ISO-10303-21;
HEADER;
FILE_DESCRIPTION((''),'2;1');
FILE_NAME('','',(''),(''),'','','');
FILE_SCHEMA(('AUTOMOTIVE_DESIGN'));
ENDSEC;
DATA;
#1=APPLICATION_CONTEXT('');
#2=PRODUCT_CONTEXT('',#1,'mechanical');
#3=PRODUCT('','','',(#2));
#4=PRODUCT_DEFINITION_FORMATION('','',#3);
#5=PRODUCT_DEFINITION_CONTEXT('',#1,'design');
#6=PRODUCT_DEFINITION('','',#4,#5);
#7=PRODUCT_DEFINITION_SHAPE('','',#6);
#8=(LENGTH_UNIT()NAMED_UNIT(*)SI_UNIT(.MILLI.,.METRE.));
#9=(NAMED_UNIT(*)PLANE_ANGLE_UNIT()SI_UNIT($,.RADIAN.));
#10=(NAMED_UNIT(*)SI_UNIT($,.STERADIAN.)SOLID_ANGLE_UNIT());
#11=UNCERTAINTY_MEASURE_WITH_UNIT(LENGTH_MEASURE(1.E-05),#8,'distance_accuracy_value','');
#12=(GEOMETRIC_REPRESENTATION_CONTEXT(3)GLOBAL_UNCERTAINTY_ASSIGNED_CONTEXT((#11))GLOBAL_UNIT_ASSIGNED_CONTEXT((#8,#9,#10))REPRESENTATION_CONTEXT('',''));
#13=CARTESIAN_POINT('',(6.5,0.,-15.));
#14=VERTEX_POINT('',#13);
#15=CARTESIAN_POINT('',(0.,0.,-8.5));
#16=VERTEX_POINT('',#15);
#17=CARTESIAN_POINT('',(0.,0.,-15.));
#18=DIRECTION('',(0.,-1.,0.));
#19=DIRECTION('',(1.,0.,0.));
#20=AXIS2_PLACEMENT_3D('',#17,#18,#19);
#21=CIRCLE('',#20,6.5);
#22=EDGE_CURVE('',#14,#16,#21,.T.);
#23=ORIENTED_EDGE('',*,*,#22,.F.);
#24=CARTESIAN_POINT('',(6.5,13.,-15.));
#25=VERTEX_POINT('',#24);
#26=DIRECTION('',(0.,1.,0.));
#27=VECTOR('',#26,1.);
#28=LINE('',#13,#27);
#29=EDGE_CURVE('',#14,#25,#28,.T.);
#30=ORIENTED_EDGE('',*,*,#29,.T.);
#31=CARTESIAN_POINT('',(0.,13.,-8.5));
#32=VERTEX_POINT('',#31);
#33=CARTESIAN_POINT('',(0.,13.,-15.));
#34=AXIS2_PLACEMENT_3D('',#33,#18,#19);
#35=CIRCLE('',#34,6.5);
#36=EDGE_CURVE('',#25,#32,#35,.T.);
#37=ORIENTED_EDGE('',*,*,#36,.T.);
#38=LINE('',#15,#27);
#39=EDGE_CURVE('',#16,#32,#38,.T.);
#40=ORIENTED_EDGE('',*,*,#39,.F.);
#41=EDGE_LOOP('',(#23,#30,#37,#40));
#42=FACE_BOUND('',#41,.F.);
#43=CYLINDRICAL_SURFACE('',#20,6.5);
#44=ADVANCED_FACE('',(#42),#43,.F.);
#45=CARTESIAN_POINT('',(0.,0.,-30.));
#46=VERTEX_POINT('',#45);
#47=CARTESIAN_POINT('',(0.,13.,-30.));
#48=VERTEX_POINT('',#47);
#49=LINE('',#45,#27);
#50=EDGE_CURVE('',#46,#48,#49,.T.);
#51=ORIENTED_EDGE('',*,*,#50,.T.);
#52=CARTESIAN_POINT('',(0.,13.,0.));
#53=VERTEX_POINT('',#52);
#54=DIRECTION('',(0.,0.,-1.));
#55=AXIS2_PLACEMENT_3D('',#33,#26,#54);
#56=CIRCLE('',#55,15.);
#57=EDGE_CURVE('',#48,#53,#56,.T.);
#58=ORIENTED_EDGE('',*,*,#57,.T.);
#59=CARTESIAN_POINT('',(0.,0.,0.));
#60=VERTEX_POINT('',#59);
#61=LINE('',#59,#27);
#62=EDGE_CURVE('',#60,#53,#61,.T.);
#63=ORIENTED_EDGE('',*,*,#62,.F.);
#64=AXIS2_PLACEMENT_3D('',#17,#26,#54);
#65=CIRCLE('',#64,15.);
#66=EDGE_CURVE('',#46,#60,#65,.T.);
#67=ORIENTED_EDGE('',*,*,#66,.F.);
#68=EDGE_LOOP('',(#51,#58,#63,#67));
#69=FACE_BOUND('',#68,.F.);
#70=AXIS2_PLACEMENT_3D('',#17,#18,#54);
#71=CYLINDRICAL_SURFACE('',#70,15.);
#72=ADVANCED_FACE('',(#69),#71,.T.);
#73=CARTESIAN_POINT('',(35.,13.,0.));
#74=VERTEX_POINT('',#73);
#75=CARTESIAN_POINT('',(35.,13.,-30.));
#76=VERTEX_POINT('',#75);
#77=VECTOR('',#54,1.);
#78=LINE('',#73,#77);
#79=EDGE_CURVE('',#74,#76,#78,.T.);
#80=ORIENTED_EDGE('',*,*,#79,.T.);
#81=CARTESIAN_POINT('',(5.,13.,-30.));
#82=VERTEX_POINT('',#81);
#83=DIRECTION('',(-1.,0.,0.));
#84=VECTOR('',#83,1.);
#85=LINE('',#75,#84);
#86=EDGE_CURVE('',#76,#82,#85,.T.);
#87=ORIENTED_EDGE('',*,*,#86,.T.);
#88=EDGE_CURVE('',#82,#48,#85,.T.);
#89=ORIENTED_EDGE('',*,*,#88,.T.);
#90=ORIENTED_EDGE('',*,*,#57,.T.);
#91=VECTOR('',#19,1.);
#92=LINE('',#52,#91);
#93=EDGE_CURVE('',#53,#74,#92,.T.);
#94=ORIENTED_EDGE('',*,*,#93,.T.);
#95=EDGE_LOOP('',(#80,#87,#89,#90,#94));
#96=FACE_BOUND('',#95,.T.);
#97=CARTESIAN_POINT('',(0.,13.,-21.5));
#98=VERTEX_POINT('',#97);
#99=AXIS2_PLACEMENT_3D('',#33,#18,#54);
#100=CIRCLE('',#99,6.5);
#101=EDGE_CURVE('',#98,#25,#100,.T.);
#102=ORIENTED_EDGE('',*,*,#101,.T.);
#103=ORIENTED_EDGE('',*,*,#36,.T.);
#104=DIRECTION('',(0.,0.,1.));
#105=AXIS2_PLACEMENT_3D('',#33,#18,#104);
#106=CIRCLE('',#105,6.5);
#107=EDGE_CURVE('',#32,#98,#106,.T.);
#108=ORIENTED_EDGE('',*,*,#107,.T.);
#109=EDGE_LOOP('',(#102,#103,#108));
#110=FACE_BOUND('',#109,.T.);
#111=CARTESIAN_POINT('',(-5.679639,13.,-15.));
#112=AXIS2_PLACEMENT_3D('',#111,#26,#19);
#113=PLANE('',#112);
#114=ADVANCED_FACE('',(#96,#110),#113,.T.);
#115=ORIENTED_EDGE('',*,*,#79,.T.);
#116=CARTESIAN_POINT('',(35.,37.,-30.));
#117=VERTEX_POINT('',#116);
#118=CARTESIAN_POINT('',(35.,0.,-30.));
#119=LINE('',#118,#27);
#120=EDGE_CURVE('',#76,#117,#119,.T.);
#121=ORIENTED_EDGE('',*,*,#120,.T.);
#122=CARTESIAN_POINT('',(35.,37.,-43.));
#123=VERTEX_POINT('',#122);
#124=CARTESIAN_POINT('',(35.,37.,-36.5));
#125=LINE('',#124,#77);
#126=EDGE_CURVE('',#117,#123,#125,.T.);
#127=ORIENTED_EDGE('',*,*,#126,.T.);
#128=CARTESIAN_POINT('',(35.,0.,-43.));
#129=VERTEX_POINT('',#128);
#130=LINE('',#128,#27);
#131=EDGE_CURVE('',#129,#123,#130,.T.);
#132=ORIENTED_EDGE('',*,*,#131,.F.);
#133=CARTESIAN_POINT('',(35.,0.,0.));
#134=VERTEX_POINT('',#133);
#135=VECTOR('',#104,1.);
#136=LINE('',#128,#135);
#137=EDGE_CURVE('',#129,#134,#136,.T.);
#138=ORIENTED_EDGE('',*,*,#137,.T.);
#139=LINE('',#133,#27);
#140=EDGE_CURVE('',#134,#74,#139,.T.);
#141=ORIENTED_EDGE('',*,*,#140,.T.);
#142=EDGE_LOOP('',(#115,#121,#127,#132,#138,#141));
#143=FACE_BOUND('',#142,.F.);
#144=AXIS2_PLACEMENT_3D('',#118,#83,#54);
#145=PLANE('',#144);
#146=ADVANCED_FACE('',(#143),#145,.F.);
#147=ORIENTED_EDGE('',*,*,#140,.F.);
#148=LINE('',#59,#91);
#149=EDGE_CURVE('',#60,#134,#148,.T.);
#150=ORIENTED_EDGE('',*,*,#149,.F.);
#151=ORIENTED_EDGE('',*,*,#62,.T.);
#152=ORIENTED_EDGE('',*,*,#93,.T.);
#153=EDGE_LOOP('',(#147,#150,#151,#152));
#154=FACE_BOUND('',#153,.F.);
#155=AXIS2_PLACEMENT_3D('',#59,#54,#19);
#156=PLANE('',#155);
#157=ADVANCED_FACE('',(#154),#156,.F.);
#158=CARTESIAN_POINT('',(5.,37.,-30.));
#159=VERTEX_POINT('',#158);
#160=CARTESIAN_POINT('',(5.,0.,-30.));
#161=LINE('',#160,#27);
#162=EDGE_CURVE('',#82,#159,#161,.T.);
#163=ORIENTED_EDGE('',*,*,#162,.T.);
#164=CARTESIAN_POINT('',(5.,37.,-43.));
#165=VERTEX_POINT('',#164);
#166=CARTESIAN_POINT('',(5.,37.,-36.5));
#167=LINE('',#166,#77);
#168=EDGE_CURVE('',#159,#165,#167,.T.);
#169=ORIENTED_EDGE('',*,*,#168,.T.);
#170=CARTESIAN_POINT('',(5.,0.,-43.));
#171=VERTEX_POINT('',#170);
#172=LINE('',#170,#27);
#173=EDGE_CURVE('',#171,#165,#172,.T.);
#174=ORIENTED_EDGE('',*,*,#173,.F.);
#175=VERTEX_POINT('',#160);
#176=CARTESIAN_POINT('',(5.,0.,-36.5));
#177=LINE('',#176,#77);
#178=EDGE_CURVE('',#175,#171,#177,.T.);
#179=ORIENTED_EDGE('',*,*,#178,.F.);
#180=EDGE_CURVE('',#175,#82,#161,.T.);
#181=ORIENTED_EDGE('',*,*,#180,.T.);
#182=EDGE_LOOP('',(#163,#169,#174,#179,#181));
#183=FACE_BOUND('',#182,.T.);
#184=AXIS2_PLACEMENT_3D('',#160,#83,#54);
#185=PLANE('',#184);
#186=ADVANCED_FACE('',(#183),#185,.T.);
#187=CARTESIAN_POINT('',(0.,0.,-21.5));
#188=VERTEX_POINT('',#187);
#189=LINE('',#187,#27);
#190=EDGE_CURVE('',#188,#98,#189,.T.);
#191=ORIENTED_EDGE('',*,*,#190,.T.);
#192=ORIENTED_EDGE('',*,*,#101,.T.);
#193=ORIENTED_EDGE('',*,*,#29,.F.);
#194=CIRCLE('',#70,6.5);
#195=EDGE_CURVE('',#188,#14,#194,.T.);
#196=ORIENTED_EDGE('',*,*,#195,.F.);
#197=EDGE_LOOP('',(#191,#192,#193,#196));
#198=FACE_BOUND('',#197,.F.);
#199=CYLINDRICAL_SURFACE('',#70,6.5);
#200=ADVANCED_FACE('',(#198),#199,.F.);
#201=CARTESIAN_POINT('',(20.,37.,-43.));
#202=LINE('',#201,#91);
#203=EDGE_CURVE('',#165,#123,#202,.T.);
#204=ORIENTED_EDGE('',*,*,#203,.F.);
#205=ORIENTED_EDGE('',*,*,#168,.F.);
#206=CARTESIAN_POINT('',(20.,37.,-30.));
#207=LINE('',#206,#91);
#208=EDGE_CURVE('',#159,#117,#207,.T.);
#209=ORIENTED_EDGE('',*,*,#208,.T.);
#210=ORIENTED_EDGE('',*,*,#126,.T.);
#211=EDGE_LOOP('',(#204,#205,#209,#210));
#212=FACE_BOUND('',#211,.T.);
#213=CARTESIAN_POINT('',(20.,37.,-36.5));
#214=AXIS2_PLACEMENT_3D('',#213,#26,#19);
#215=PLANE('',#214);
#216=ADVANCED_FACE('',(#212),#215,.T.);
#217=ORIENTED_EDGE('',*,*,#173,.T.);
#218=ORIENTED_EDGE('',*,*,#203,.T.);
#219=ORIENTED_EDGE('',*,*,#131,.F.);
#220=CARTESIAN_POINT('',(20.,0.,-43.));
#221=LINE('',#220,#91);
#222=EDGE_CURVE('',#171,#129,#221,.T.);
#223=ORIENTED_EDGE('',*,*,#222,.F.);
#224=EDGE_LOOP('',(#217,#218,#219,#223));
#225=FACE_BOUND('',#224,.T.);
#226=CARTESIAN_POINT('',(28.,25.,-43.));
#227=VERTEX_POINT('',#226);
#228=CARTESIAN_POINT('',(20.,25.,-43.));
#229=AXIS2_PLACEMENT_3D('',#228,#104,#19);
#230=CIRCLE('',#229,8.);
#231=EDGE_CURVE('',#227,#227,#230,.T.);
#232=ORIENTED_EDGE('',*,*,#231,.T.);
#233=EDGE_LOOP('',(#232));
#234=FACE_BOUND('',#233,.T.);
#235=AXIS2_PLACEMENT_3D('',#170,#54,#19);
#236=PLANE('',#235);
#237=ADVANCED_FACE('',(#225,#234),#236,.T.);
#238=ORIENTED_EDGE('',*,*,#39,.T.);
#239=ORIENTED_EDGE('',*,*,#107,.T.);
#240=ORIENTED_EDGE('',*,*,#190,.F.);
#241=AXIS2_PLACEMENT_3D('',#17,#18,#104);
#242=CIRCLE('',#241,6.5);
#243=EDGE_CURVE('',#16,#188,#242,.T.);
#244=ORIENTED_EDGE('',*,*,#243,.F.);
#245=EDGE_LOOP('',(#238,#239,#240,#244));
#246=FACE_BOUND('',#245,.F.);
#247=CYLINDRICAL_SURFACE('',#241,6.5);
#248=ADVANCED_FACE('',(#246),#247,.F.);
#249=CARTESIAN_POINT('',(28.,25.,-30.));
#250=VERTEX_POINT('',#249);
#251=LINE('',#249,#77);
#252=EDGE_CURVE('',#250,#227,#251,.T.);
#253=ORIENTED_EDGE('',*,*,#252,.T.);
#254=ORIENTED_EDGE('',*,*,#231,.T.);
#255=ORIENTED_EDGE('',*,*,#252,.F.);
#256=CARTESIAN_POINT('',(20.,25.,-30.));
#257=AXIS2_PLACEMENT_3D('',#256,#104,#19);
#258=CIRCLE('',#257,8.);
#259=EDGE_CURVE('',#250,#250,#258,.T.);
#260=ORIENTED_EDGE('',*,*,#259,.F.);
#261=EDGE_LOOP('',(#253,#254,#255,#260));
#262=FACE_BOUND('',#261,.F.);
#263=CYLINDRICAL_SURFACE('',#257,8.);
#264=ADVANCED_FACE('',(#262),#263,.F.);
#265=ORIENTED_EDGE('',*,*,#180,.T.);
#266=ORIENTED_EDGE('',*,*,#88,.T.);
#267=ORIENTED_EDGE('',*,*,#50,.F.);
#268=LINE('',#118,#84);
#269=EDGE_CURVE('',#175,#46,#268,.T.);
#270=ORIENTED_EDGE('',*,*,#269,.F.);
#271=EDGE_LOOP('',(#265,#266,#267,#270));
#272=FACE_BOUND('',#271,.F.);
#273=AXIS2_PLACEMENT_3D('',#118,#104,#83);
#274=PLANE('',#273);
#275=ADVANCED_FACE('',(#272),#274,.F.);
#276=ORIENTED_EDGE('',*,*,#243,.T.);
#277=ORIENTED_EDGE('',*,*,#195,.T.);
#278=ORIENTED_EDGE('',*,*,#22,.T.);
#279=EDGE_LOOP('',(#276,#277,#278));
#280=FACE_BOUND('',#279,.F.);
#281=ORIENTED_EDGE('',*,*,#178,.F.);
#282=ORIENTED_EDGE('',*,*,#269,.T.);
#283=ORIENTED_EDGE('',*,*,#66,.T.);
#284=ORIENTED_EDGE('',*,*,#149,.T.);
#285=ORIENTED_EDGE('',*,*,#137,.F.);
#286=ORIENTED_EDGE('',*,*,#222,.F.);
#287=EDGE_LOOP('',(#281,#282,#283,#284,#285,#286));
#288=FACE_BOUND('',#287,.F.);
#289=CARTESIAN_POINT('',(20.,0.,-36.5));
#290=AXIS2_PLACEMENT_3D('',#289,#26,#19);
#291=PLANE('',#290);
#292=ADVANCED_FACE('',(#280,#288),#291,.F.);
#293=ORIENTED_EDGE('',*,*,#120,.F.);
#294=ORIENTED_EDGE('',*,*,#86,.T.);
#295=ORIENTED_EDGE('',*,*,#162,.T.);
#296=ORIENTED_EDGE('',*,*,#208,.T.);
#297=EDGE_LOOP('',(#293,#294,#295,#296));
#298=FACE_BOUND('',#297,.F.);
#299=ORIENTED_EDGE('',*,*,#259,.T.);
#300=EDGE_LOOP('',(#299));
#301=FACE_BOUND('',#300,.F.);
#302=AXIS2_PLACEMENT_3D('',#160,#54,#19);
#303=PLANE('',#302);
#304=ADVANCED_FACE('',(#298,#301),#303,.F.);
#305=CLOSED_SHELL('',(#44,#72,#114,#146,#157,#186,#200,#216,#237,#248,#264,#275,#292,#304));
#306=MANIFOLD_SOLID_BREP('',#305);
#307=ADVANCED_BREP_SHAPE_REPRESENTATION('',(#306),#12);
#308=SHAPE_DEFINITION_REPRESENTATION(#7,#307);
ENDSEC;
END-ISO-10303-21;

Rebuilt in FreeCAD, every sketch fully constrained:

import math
import FreeCAD as App
import Part
import Sketcher
from FreeCAD import Vector
Q = App.Units.Quantity


def add_polygon(sketch, points):
    """Adds a closed chain of lines whose ends are joined by coincident constraints."""
    first, n = sketch.GeometryCount, len(points)
    for a, b in zip(points, points[1:] + points[:1]):
        sketch.addGeometry(Part.LineSegment(App.Vector(*a, 0), App.Vector(*b, 0)), False)
    for i in range(n):
        sketch.addConstraint(Sketcher.Constraint("Coincident", first + i, 2, first + (i + 1) % n, 1))

doc = App.newDocument("Part")
params = doc.addObject("Spreadsheet::Sheet", "Params")
for row, (alias, value) in enumerate([
    ("sketch1_radius", "15 mm"),
    ("sketch1_radius2", "6.5 mm"),
    ("sketch1_width", "35 mm"),
    ("pad1_length", "13 mm"),
    ("sketch2_width", "30 mm"),
    ("sketch2_height", "13 mm"),
    ("pad2_length", "37 mm"),
    ("sketch3_diameter", "16 mm"),
    ("pocket1_length", "37 mm"),
], start=1):
    params.set(f"A{row}", alias)
    params.set(f"B{row}", "=" + value)
    params.setAlias(f"B{row}", alias)

body = doc.addObject("PartDesign::Body", "Body")

# Sketch on XZ plane
sketch1 = body.newObject("Sketcher::SketchObject", "Sketch")
sketch1.AttachmentSupport = (doc.getObject("XZ_Plane"), [""])
sketch1.MapMode = "FlatFace"
sketch1.addGeometry([
    Part.ArcOfCircle(Part.Circle(Vector(0, -15, 0), Vector(0, 0, 1), 15), math.radians(90), math.radians(270)),  # 0
    Part.LineSegment(Vector(0, 0, 0), Vector(35, 0, 0)),  # 1
    Part.LineSegment(Vector(35, 0, 0), Vector(35, -30, 0)),  # 2
    Part.LineSegment(Vector(35, -30, 0), Vector(0, -30, 0)),  # 3
    Part.ArcOfCircle(Part.Circle(Vector(0, -15, 0), Vector(0, 0, 1), 6.5), math.radians(90), math.radians(270)),  # 4
    Part.ArcOfCircle(Part.Circle(Vector(0, -15, 0), Vector(0, 0, 1), 6.5), math.radians(-90), math.radians(0)),  # 5
    Part.ArcOfCircle(Part.Circle(Vector(0, -15, 0), Vector(0, 0, 1), 6.5), math.radians(0), math.radians(90)),  # 6
], False)
sketch1.addConstraint([
    Sketcher.Constraint("Tangent", 0, 1, 1, 1),
    Sketcher.Constraint("Coincident", 1, 2, 2, 1),
    Sketcher.Constraint("Coincident", 2, 2, 3, 1),
    Sketcher.Constraint("Tangent", 3, 2, 0, 2),
    Sketcher.Constraint("Tangent", 4, 2, 5, 1),
    Sketcher.Constraint("Tangent", 5, 2, 6, 1),
    Sketcher.Constraint("Tangent", 6, 2, 4, 1),
    Sketcher.Constraint("Horizontal", 1),
    Sketcher.Constraint("Vertical", 2),
    Sketcher.Constraint("Horizontal", 3),
    Sketcher.Constraint("Coincident", 0, 1, -1, 1),
    Sketcher.Constraint("Coincident", 4, 3, 0, 3),
    Sketcher.Constraint("PointOnObject", 4, 2, -2),
    Sketcher.Constraint("PointOnObject", 6, 2, -2),
    Sketcher.Constraint("Horizontal", 6, 3, 5, 2),
    Sketcher.Constraint("Radius", 0, Q("15 mm")),
    Sketcher.Constraint("Radius", 4, Q("6.5 mm")),
    Sketcher.Constraint("DistanceX", 1, 1, 1, 2, Q("35 mm")),
])
sketch1.setExpression("Constraints[15]", "Params.sketch1_radius")
sketch1.setExpression("Constraints[16]", "Params.sketch1_radius2")
sketch1.setExpression("Constraints[17]", "Params.sketch1_width")
pad1 = body.newObject("PartDesign::Pad", "Pad")
pad1.Profile = sketch1
pad1.setExpression("Length", "Params.pad1_length")
pad1.Reversed = True

# Sketch on XZ plane
sketch2 = body.newObject("Sketcher::SketchObject", "Sketch001")
sketch2.AttachmentSupport = (doc.getObject("XZ_Plane"), [""])
sketch2.MapMode = "FlatFace"
add_polygon(sketch2, [(5, -43), (5, -30), (35, -30), (35, -43)])  # lines 0-3
sketch2.addConstraint([
    Sketcher.Constraint("Vertical", 0),
    Sketcher.Constraint("Horizontal", 1),
    Sketcher.Constraint("Vertical", 2),
    Sketcher.Constraint("Horizontal", 3),
    Sketcher.Constraint("DistanceX", 1, 1, 1, 2, Q("30 mm")),
    Sketcher.Constraint("DistanceY", 0, 1, 0, 2, Q("13 mm")),
    Sketcher.Constraint("DistanceX", -1, 1, 0, 2, Q("5 mm")),
    Sketcher.Constraint("DistanceY", 0, 2, -1, 1, Q("30 mm")),
])
sketch2.setExpression("Constraints[8]", "Params.sketch2_width")
sketch2.setExpression("Constraints[9]", "Params.sketch2_height")
pad2 = body.newObject("PartDesign::Pad", "Pad001")
pad2.Profile = sketch2
pad2.setExpression("Length", "Params.pad2_length")
pad2.Reversed = True

# Sketch on XY plane
sketch3 = body.newObject("Sketcher::SketchObject", "Sketch002")
sketch3.AttachmentSupport = (doc.getObject("XY_Plane"), [""])
sketch3.MapMode = "FlatFace"
sketch3.AttachmentOffset = App.Placement(Vector(0, 0, -30), App.Rotation())
sketch3.addGeometry(Part.Circle(Vector(20, 25, 0), Vector(0, 0, 1), 8), False)
sketch3.addConstraint([
    Sketcher.Constraint("Diameter", 0, Q("16 mm")),
    Sketcher.Constraint("DistanceX", -1, 1, 0, 3, Q("20 mm")),
    Sketcher.Constraint("DistanceY", -1, 1, 0, 3, Q("25 mm")),
])
sketch3.setExpression("Constraints[0]", "Params.sketch3_diameter")
pocket1 = body.newObject("PartDesign::Pocket", "Pocket")
pocket1.Profile = sketch3
pocket1.setExpression("Length", "Params.pocket1_length")

doc.recompute()
